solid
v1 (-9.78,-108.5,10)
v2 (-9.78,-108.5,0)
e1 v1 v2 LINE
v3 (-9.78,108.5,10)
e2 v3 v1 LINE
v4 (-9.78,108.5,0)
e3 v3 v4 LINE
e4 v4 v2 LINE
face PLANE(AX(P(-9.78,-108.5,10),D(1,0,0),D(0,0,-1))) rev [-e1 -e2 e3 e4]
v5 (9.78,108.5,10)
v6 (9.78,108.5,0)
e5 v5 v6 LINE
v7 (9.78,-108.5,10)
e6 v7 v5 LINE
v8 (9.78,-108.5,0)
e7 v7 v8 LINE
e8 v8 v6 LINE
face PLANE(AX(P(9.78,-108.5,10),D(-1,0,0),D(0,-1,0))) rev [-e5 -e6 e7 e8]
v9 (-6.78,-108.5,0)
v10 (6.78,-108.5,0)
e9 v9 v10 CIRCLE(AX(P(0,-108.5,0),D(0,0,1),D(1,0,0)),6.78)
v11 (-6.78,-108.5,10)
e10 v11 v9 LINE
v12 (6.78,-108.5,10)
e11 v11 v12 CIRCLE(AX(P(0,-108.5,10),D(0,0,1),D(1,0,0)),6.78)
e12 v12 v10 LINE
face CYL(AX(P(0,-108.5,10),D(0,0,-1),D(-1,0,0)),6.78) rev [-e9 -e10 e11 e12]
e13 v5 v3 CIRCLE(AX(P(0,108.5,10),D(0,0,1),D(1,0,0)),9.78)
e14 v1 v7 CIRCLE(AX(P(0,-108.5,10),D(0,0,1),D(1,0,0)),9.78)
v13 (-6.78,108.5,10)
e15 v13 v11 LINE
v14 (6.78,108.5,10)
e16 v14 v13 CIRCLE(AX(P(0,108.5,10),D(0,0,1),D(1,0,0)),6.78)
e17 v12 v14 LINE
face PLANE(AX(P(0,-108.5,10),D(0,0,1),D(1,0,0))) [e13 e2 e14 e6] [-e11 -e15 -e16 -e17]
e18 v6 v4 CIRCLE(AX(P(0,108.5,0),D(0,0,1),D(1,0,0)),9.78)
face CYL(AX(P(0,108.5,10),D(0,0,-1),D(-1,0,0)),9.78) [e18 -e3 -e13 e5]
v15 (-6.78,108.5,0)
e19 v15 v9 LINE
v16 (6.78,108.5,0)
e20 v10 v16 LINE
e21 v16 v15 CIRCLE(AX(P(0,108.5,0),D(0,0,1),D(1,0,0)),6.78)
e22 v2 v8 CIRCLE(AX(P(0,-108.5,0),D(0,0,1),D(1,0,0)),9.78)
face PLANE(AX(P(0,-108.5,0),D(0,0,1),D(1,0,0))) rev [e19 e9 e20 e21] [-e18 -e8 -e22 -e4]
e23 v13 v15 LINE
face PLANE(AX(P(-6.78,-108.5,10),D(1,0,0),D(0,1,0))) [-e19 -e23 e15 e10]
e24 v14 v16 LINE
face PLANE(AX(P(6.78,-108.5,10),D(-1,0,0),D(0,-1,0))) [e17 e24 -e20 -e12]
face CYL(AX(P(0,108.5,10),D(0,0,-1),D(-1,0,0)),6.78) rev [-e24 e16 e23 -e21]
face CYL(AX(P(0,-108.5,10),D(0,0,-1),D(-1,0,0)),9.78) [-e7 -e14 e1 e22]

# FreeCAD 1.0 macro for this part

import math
import FreeCAD as App
import Part
import Sketcher

doc = App.newDocument("Part")
body = doc.addObject("PartDesign::Body", "Body")

# Sketch on XY plane
sketch1 = doc.addObject("Sketcher::SketchObject", "Sketch")
body.addObject(sketch1)
sketch1.AttachmentSupport = (doc.XY_Plane, [""])
sketch1.MapMode = "FlatFace"
sketch1.addGeometry([
    Part.LineSegment(App.Vector(-9.78, 108.5, 0), App.Vector(-9.78, -108.5, 0)),  # 0
    Part.ArcOfCircle(Part.Circle(App.Vector(0, -108.5, 0), App.Vector(0, 0, 1), 9.78), math.radians(180), math.radians(360)),  # 1
    Part.LineSegment(App.Vector(9.78, -108.5, 0), App.Vector(9.78, 108.5, 0)),  # 2
    Part.ArcOfCircle(Part.Circle(App.Vector(0, 108.5, 0), App.Vector(0, 0, 1), 9.78), math.radians(0), math.radians(180)),  # 3
    Part.LineSegment(App.Vector(-6.78, -108.5, 0), App.Vector(-6.78, 108.5, 0)),  # 4
    Part.ArcOfCircle(Part.Circle(App.Vector(0, 108.5, 0), App.Vector(0, 0, 1), 6.78), math.radians(0), math.radians(180)),  # 5
    Part.LineSegment(App.Vector(6.78, 108.5, 0), App.Vector(6.78, -108.5, 0)),  # 6
    Part.ArcOfCircle(Part.Circle(App.Vector(0, -108.5, 0), App.Vector(0, 0, 1), 6.78), math.radians(180), math.radians(360)),  # 7
], False)
sketch1.addConstraint([
    Sketcher.Constraint("Tangent", 0, 2, 1, 1),
    Sketcher.Constraint("Tangent", 1, 2, 2, 1),
    Sketcher.Constraint("Tangent", 2, 2, 3, 1),
    Sketcher.Constraint("Tangent", 3, 2, 0, 1),
    Sketcher.Constraint("Tangent", 4, 2, 5, 2),
    Sketcher.Constraint("Tangent", 5, 1, 6, 1),
    Sketcher.Constraint("Tangent", 6, 2, 7, 2),
    Sketcher.Constraint("Tangent", 7, 1, 4, 1),
    Sketcher.Constraint("Vertical", 0),
    Sketcher.Constraint("Vertical", 2),
    Sketcher.Constraint("Vertical", 4),
    Sketcher.Constraint("Vertical", 6),
    Sketcher.Constraint("Coincident", 5, 3, 3, 3),
    Sketcher.Constraint("Symmetric", 1, 3, 3, 3, -1, 1),
    Sketcher.Constraint("Horizontal", 7, 3, 0, 2),
    Sketcher.Constraint("DistanceY", 0, 2, 0, 1, 217.0),
    Sketcher.Constraint("Radius", 1, 9.78),
    Sketcher.Constraint("Radius", 5, 6.78),
])
pad1 = doc.addObject("PartDesign::Pad", "Pad")
body.addObject(pad1)
pad1.Profile = sketch1
pad1.Length = 10

doc.recompute()
